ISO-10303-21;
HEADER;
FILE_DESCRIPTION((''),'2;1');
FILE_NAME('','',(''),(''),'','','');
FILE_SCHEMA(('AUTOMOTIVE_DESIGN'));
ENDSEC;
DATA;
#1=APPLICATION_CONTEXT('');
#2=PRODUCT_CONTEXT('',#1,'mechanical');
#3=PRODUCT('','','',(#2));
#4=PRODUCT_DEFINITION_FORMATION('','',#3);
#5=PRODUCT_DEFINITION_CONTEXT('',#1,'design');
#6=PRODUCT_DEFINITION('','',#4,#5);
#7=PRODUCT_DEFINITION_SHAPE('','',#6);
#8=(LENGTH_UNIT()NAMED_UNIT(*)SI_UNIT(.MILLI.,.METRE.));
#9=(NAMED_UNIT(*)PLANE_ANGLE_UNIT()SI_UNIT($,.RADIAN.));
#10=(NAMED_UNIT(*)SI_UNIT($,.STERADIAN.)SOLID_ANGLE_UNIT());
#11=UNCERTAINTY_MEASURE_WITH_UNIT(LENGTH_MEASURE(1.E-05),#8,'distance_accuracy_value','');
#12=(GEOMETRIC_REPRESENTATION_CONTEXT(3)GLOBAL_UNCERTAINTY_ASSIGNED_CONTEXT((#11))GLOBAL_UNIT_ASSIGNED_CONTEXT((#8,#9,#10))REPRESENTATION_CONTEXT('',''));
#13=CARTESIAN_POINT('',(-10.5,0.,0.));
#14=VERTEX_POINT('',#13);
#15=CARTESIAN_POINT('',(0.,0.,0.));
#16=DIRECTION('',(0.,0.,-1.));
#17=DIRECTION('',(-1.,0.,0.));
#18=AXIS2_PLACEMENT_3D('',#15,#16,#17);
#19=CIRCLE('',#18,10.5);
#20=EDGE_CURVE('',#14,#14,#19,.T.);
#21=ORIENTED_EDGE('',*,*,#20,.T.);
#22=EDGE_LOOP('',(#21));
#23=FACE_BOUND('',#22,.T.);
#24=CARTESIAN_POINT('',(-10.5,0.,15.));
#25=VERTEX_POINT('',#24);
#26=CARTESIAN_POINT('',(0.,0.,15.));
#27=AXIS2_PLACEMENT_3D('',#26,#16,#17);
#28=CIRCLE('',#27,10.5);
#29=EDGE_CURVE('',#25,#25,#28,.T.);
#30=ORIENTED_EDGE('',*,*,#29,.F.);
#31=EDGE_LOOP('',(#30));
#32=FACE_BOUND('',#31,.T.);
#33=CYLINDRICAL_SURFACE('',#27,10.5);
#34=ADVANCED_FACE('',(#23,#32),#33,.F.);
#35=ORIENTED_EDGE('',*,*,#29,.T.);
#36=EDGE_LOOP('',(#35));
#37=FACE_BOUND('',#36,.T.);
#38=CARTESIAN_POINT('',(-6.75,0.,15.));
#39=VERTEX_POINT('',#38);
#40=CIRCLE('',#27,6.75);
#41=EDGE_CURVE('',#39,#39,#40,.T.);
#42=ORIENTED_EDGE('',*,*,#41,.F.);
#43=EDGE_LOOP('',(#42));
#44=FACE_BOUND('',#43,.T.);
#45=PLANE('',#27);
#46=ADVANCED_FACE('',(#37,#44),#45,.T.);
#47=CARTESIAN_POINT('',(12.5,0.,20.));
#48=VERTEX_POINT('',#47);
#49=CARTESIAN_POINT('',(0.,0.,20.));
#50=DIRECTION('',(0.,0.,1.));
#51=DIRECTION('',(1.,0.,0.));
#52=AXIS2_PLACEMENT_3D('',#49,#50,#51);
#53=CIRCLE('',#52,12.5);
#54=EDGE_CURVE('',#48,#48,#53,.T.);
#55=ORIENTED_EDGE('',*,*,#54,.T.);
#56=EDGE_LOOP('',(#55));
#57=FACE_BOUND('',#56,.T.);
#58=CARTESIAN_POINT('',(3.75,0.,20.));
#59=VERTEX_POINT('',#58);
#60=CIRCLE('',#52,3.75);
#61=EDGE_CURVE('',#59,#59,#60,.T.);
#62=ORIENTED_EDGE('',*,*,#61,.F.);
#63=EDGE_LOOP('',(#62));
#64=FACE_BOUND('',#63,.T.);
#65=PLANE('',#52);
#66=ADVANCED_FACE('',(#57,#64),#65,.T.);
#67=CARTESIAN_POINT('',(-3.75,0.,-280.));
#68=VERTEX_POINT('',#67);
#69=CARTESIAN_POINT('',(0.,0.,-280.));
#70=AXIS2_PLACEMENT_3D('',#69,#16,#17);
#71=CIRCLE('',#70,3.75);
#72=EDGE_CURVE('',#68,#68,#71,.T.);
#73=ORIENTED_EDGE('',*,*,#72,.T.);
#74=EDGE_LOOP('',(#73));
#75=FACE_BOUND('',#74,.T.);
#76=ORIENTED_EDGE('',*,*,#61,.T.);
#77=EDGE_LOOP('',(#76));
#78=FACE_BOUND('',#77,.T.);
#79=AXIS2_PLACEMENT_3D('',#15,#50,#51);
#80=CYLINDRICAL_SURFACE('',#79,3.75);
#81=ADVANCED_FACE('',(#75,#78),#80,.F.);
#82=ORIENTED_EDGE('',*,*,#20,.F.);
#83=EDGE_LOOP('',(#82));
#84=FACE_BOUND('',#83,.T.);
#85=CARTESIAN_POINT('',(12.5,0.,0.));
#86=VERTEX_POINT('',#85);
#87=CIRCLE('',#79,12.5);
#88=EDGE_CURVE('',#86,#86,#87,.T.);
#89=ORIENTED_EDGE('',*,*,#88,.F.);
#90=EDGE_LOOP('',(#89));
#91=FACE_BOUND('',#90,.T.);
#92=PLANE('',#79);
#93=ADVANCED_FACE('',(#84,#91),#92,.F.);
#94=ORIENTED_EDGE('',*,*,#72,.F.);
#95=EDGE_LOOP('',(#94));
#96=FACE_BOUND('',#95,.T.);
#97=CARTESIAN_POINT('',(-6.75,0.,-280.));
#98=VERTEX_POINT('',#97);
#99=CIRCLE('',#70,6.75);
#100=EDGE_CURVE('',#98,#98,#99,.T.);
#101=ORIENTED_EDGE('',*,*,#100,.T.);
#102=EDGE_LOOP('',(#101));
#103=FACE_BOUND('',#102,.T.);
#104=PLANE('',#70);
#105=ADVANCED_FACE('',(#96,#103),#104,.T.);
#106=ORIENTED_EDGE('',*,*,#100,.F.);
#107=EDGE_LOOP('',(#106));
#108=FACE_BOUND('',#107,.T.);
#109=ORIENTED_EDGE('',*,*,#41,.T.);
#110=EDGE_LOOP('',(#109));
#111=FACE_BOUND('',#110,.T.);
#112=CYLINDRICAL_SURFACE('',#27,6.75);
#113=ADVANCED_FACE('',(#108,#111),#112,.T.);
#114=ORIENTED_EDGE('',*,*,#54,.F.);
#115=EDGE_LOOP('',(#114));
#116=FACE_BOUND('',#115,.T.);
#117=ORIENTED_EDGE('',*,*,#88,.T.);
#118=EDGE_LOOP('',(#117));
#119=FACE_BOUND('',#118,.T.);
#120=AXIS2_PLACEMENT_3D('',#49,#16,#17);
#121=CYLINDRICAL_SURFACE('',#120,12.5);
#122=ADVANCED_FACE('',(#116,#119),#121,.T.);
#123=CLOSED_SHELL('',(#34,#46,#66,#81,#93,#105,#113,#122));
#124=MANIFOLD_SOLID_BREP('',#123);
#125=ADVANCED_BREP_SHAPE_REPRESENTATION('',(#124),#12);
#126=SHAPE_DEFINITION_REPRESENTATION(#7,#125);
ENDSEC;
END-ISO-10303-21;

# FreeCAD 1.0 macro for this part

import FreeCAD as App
import Part
import Sketcher
from FreeCAD import Vector
Q = App.Units.Quantity

doc = App.newDocument("Part")
body = doc.addObject("PartDesign::Body", "Body")

sketch1 = body.newObject("Sketcher::SketchObject", "Sketch")
sketch1.AttachmentSupport = (doc.getObject("XY_Plane"), [""])
sketch1.MapMode = "FlatFace"
sketch1.addGeometry(Part.Circle(Vector(0, 0, 0), Vector(0, 0, 1), 12), False)
sketch1.addConstraint([
    Sketcher.Constraint("Coincident", 0, 3, -1, 1),
    Sketcher.Constraint("Diameter", 0, Q("25 mm")),
])
pad1 = body.newObject("PartDesign::Pad", "Pad")
pad1.Profile = sketch1
pad1.Length = 20

sketch2 = body.newObject("Sketcher::SketchObject", "Sketch001")
sketch2.AttachmentSupport = (doc.getObject("XY_Plane"), [""])
sketch2.MapMode = "FlatFace"
sketch2.addGeometry([
    Part.Circle(Vector(0, 0, 0), Vector(0, 0, 1), 10),
    Part.Circle(Vector(0, 0, 0), Vector(0, 0, 1), 7),
], False)
sketch2.addConstraint([
    Sketcher.Constraint("Coincident", 0, 3, -1, 1),
    Sketcher.Constraint("Coincident", 1, 3, -1, 1),
    Sketcher.Constraint("Diameter", 0, Q("21 mm")),
    Sketcher.Constraint("Diameter", 1, Q("13.5 mm")),
])
pocket1 = body.newObject("PartDesign::Pocket", "Pocket")
pocket1.Profile = sketch2
pocket1.Length = 15
pocket1.Reversed = True

sketch3 = body.newObject("Sketcher::SketchObject", "Sketch002")
sketch3.AttachmentSupport = (doc.getObject("XY_Plane"), [""])
sketch3.MapMode = "FlatFace"
sketch3.AttachmentOffset = App.Placement(Vector(0, 0, 20), App.Rotation())
sketch3.addGeometry(Part.Circle(Vector(0, 0, 0), Vector(0, 0, 1), 3.8), False)
sketch3.addConstraint([
    Sketcher.Constraint("Coincident", 0, 3, -1, 1),
    Sketcher.Constraint("Diameter", 0, Q("7.5 mm")),
])
pocket2 = body.newObject("PartDesign::Pocket", "Pocket001")
pocket2.Profile = sketch3
pocket2.Type = "ThroughAll"

sketch4 = body.newObject("Sketcher::SketchObject", "Sketch003")
sketch4.AttachmentSupport = (doc.getObject("XY_Plane"), [""])
sketch4.MapMode = "FlatFace"
sketch4.addGeometry([
    Part.Circle(Vector(0, 0, 0), Vector(0, 0, 1), 6.8),
    Part.Circle(Vector(0, 0, 0), Vector(0, 0, 1), 3.8),
], False)
sketch4.addConstraint([
    Sketcher.Constraint("Coincident", 0, 3, -1, 1),
    Sketcher.Constraint("Coincident", 1, 3, -1, 1),
    Sketcher.Constraint("Diameter", 0, Q("13.5 mm")),
    Sketcher.Constraint("Diameter", 1, Q("7.5 mm")),
])
pad2 = body.newObject("PartDesign::Pad", "Pad001")
pad2.Profile = sketch4
pad2.Length = 280
pad2.Reversed = True

doc.recompute()
